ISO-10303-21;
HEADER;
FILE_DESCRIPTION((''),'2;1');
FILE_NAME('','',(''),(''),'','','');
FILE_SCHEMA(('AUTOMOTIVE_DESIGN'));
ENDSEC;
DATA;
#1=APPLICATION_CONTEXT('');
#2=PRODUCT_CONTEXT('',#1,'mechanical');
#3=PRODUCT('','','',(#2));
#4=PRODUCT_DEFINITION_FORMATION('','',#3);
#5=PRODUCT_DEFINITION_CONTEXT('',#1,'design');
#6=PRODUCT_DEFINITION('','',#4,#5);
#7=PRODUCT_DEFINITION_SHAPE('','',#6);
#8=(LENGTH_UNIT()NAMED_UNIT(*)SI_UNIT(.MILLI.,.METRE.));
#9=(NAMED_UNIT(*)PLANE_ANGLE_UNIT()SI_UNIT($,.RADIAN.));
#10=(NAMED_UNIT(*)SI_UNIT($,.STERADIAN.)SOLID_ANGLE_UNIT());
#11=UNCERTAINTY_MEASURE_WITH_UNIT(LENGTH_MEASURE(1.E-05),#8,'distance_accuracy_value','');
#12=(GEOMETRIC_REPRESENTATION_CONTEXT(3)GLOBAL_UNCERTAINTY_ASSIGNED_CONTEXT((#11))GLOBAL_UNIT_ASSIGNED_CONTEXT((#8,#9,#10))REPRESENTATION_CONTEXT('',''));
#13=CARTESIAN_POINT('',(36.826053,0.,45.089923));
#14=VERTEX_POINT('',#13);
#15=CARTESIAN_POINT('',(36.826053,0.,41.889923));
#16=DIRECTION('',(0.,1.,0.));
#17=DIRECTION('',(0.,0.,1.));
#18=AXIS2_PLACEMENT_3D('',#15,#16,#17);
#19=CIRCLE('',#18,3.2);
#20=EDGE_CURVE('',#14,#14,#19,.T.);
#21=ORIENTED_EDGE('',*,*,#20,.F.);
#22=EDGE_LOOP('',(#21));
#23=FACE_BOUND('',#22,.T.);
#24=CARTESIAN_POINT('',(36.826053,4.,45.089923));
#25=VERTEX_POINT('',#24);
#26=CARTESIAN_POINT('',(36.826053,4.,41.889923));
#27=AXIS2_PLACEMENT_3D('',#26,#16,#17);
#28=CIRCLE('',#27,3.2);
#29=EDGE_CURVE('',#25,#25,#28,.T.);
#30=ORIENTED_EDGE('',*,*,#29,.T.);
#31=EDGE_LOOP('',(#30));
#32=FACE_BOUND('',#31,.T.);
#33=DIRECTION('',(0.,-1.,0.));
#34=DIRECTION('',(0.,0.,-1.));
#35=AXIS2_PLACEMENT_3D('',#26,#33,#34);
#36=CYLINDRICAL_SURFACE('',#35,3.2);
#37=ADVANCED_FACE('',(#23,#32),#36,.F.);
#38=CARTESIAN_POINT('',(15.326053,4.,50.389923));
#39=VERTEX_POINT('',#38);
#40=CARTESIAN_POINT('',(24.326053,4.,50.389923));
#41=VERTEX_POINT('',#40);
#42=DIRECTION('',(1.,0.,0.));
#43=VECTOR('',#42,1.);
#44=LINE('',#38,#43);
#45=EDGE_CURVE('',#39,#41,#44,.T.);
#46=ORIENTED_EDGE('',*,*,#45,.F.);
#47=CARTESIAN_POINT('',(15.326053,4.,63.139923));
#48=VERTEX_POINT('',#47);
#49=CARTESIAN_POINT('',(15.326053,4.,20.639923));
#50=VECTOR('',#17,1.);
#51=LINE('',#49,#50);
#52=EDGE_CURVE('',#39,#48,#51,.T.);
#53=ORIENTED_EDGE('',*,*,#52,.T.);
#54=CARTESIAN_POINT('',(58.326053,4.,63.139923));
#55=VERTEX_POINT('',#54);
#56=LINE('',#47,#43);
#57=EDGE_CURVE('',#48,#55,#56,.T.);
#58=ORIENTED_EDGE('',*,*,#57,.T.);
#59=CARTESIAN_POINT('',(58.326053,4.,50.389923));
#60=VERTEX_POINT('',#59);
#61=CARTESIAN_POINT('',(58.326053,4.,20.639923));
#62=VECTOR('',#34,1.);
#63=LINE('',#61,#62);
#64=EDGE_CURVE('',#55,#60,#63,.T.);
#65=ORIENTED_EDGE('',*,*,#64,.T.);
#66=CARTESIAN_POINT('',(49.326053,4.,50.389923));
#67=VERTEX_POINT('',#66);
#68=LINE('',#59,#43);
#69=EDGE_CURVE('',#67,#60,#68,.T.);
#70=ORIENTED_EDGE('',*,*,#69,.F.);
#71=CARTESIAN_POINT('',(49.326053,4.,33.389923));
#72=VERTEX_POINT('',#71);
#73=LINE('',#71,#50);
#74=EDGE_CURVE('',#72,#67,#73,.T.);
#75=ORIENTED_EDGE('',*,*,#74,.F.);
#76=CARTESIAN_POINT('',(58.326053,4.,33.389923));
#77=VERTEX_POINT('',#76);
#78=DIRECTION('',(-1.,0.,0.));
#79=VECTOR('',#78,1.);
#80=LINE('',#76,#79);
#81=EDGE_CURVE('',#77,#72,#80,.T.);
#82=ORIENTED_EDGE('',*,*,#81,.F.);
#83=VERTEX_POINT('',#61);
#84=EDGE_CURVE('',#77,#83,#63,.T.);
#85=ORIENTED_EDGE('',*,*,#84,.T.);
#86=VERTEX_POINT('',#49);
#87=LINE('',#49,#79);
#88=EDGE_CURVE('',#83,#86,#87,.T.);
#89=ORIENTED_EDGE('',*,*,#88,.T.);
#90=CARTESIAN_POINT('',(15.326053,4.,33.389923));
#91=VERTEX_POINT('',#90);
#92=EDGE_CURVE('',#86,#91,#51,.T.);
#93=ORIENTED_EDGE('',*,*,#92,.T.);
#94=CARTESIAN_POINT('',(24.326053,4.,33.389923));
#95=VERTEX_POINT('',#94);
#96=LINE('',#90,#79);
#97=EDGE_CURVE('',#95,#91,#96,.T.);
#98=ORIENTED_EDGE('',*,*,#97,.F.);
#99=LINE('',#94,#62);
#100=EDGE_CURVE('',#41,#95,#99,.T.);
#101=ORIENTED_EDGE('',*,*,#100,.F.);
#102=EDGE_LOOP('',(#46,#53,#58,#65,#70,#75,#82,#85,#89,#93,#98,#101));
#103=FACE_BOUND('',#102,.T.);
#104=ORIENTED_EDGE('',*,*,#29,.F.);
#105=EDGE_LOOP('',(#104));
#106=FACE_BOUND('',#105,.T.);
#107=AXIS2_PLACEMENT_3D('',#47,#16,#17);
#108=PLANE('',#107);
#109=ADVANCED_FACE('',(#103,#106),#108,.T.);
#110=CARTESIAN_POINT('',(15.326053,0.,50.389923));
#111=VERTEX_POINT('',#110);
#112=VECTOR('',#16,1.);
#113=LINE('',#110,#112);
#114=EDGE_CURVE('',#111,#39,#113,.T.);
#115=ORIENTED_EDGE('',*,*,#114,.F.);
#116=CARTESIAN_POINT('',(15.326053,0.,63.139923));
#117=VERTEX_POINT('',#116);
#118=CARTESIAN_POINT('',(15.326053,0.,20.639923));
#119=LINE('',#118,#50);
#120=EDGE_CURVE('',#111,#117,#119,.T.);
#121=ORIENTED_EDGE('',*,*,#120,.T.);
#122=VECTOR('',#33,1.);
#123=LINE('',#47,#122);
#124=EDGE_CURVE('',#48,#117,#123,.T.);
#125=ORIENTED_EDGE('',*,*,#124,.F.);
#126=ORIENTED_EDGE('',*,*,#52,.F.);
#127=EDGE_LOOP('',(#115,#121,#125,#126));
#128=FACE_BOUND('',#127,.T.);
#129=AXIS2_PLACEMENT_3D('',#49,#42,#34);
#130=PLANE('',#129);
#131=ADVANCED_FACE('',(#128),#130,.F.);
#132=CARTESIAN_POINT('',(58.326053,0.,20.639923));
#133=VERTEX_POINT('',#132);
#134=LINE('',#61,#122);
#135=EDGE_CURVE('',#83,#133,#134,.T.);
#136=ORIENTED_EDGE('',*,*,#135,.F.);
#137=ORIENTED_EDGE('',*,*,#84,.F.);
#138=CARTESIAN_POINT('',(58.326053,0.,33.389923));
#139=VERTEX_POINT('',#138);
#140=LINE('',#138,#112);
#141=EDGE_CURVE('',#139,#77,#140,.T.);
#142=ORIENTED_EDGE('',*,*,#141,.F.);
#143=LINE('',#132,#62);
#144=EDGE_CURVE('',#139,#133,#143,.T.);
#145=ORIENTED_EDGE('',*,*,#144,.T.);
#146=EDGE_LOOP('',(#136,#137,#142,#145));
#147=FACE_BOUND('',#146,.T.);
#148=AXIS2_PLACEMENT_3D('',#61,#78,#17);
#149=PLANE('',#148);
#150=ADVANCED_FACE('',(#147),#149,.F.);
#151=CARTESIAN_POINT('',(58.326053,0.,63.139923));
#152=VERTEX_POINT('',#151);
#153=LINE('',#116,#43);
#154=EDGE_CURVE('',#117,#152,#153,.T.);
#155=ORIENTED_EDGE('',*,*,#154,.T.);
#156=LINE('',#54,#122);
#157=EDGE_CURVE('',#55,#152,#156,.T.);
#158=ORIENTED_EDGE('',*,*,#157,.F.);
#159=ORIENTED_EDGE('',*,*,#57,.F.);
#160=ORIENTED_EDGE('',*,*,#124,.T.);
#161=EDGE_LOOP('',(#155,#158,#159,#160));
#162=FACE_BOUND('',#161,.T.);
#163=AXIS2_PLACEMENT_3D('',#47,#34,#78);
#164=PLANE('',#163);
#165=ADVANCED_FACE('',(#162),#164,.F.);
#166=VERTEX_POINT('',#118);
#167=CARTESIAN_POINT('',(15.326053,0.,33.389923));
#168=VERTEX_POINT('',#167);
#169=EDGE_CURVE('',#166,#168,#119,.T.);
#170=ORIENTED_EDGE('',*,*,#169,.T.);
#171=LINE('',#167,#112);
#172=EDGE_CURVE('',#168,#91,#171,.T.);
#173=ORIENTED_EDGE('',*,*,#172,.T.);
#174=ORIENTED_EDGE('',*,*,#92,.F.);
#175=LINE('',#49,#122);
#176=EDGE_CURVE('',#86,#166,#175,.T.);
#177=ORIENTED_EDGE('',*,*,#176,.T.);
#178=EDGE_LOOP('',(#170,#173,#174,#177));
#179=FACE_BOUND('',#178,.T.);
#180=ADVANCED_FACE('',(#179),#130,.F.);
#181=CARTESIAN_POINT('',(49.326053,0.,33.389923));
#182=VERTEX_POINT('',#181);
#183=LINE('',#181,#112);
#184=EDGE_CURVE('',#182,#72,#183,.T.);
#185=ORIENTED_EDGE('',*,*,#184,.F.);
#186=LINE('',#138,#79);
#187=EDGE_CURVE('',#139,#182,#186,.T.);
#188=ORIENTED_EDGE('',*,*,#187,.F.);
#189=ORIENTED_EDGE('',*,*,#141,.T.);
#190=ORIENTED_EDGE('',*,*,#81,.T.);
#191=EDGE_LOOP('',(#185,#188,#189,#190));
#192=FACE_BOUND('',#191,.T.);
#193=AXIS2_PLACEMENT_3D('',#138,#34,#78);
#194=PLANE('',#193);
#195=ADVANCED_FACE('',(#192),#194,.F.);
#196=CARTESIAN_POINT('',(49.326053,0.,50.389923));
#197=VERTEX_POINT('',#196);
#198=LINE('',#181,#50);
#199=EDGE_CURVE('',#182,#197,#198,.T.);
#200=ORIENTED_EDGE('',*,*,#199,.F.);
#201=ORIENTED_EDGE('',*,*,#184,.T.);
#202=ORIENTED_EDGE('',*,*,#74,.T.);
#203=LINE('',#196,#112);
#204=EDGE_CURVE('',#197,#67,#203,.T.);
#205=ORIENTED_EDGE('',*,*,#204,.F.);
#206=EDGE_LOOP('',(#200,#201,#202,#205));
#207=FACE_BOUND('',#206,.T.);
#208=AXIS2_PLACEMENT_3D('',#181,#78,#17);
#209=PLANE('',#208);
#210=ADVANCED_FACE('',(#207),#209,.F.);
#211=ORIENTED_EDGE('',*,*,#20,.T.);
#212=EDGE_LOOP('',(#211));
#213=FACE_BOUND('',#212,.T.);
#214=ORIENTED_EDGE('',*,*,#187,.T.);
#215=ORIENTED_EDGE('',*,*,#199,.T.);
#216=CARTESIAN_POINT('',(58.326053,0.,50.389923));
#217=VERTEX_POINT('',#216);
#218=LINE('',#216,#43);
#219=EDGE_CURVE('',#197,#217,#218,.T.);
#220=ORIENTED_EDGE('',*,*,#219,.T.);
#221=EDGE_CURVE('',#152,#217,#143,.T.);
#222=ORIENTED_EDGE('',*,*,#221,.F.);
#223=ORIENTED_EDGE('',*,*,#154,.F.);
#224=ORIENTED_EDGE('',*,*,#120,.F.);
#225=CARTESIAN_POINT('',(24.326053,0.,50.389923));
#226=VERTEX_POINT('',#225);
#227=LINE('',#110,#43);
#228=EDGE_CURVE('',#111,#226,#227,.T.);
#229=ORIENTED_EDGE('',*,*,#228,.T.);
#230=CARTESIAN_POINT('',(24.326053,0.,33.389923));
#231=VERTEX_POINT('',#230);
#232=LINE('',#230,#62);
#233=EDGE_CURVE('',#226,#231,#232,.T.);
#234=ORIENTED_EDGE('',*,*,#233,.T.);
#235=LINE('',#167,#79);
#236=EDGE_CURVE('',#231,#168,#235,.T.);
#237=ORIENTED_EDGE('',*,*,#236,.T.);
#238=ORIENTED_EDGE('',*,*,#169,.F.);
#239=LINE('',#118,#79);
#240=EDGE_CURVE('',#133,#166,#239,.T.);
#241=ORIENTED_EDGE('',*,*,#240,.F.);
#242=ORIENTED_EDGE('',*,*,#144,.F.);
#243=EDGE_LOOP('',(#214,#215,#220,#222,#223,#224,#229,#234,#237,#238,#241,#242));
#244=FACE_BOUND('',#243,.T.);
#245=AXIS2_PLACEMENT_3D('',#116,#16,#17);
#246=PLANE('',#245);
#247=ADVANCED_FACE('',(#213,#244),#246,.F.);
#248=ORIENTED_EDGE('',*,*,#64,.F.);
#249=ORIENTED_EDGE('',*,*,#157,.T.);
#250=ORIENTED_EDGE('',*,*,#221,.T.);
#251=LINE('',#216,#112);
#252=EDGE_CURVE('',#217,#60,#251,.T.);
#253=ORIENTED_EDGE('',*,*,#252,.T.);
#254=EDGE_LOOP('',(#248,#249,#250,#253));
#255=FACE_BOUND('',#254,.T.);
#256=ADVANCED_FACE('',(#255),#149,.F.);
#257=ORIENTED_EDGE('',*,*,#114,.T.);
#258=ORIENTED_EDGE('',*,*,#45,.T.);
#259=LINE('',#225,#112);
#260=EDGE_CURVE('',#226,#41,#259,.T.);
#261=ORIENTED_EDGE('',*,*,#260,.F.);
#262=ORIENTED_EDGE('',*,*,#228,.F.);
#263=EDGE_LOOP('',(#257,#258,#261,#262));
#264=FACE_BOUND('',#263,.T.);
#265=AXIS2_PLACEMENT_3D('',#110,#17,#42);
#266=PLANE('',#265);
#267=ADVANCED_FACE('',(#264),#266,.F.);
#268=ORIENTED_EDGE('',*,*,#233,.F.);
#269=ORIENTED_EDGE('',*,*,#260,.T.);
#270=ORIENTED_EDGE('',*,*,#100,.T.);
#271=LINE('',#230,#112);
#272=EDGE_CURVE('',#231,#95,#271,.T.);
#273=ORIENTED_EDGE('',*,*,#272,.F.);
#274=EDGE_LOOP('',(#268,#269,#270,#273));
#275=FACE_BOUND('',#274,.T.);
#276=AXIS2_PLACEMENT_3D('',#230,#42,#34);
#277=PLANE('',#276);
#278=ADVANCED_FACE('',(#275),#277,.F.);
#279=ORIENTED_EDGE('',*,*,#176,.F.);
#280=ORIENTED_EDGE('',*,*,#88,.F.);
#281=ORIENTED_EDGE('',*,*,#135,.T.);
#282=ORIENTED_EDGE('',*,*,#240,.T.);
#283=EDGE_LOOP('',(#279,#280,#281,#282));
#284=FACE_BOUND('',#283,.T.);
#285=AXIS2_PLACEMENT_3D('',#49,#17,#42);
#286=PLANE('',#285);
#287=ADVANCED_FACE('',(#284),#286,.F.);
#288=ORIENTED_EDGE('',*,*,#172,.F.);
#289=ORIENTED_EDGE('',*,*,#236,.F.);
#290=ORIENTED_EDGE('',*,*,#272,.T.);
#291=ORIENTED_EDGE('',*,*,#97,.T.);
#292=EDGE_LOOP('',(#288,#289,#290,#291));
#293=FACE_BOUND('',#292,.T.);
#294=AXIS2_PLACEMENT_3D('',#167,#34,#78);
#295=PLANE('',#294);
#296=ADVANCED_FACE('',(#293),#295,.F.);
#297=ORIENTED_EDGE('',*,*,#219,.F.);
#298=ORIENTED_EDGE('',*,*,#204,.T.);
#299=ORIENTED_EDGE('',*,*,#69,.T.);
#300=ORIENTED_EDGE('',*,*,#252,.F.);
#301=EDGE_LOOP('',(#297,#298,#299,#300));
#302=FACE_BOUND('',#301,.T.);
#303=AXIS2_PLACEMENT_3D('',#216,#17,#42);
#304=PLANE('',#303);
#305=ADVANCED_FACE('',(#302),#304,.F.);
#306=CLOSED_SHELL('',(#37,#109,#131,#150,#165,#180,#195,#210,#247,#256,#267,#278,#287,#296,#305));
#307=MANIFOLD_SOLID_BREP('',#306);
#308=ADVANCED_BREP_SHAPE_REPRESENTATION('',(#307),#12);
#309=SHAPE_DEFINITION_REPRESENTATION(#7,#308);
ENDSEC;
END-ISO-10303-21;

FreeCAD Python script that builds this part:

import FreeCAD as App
import Part
import Sketcher
Q = App.Units.Quantity

doc = App.newDocument("Part")
body = doc.addObject("PartDesign::Body", "Body")

# Sketch on XZ plane
sketch1 = body.newObject("Sketcher::SketchObject", "Sketch")
sketch1.AttachmentSupport = (doc.getObject("XZ_Plane"), [""])
sketch1.MapMode = "FlatFace"
sketch1.addGeometry([
    Part.LineSegment(App.Vector(15.326053, 20.639923, 0), App.Vector(15.326053, 63.139923, 0)),  # 0
    Part.LineSegment(App.Vector(15.326053, 63.139923, 0), App.Vector(58.326053, 63.139923, 0)),  # 1
    Part.LineSegment(App.Vector(58.326053, 63.139923, 0), App.Vector(58.326053, 20.639923, 0)),  # 2
    Part.LineSegment(App.Vector(58.326053, 20.639923, 0), App.Vector(15.326053, 20.639923, 0)),  # 3
    Part.Circle(App.Vector(36.826053, 41.889923, 0), App.Vector(0, 0, 1), 3.2),  # 4
], False)
sketch1.addConstraint([
    Sketcher.Constraint("Coincident", 0, 2, 1, 1),
    Sketcher.Constraint("Coincident", 1, 2, 2, 1),
    Sketcher.Constraint("Coincident", 2, 2, 3, 1),
    Sketcher.Constraint("Coincident", 3, 2, 0, 1),
    Sketcher.Constraint("Vertical", 0),
    Sketcher.Constraint("Horizontal", 1),
    Sketcher.Constraint("Vertical", 2),
    Sketcher.Constraint("Horizontal", 3),
    Sketcher.Constraint("Diameter", 4, Q("6.4 mm")),
    Sketcher.Constraint("DistanceX", 1, 1, 1, 2, Q("43 mm")),
    Sketcher.Constraint("DistanceY", 0, 1, 0, 2, Q("42.5 mm")),
    Sketcher.Constraint("DistanceX", 0, 2, 4, 3, Q("21.5 mm")),
    Sketcher.Constraint("DistanceY", 4, 3, 0, 2, Q("21.25 mm")),
    Sketcher.Constraint("DistanceX", -1, 1, 4, 3, Q("36.826053 mm")),
    Sketcher.Constraint("DistanceY", -1, 1, 4, 3, Q("41.889923 mm")),
])
pad1 = body.newObject("PartDesign::Pad", "Pad")
pad1.Profile = sketch1
pad1.Length = 4
pad1.Reversed = True

# Sketch on XZ plane
sketch2 = body.newObject("Sketcher::SketchObject", "Sketch001")
sketch2.AttachmentSupport = (doc.getObject("XZ_Plane"), [""])
sketch2.MapMode = "FlatFace"
sketch2.AttachmentOffset = App.Placement(App.Vector(0, 0, -4), App.Rotation())
sketch2.addGeometry([
    Part.LineSegment(App.Vector(15.326053, 33.389923, 0), App.Vector(15.326053, 50.389923, 0)),  # 0
    Part.LineSegment(App.Vector(15.326053, 50.389923, 0), App.Vector(24.326053, 50.389923, 0)),  # 1
    Part.LineSegment(App.Vector(24.326053, 50.389923, 0), App.Vector(24.326053, 33.389923, 0)),  # 2
    Part.LineSegment(App.Vector(24.326053, 33.389923, 0), App.Vector(15.326053, 33.389923, 0)),  # 3
    Part.LineSegment(App.Vector(49.326053, 33.389923, 0), App.Vector(49.326053, 50.389923, 0)),  # 4
    Part.LineSegment(App.Vector(49.326053, 50.389923, 0), App.Vector(58.326053, 50.389923, 0)),  # 5
    Part.LineSegment(App.Vector(58.326053, 50.389923, 0), App.Vector(58.326053, 33.389923, 0)),  # 6
    Part.LineSegment(App.Vector(58.326053, 33.389923, 0), App.Vector(49.326053, 33.389923, 0)),  # 7
], False)
sketch2.addConstraint([
    Sketcher.Constraint("Coincident", 0, 2, 1, 1),
    Sketcher.Constraint("Coincident", 1, 2, 2, 1),
    Sketcher.Constraint("Coincident", 2, 2, 3, 1),
    Sketcher.Constraint("Coincident", 3, 2, 0, 1),
    Sketcher.Constraint("Coincident", 4, 2, 5, 1),
    Sketcher.Constraint("Coincident", 5, 2, 6, 1),
    Sketcher.Constraint("Coincident", 6, 2, 7, 1),
    Sketcher.Constraint("Coincident", 7, 2, 4, 1),
    Sketcher.Constraint("Vertical", 0),
    Sketcher.Constraint("Horizontal", 1),
    Sketcher.Constraint("Vertical", 2),
    Sketcher.Constraint("Horizontal", 3),
    Sketcher.Constraint("Vertical", 4),
    Sketcher.Constraint("Horizontal", 5),
    Sketcher.Constraint("Vertical", 6),
    Sketcher.Constraint("Horizontal", 7),
    Sketcher.Constraint("Horizontal", 1, 2, 4, 2),
    Sketcher.Constraint("Horizontal", 3, 2, 6, 2),
    Sketcher.Constraint("Equal", 3, 5),
    Sketcher.Constraint("DistanceX", 1, 1, 1, 2, Q("9 mm")),
    Sketcher.Constraint("DistanceY", 0, 1, 0, 2, Q("17 mm")),
    Sketcher.Constraint("DistanceX", 1, 2, 4, 2, Q("25 mm")),
    Sketcher.Constraint("DistanceX", -1, 1, 0, 2, Q("15.326053 mm")),
    Sketcher.Constraint("DistanceY", -1, 1, 0, 2, Q("50.389923 mm")),
])
pocket1 = body.newObject("PartDesign::Pocket", "Pocket")
pocket1.Profile = sketch2
pocket1.Length = 4
pocket1.Reversed = True

doc.recompute()
